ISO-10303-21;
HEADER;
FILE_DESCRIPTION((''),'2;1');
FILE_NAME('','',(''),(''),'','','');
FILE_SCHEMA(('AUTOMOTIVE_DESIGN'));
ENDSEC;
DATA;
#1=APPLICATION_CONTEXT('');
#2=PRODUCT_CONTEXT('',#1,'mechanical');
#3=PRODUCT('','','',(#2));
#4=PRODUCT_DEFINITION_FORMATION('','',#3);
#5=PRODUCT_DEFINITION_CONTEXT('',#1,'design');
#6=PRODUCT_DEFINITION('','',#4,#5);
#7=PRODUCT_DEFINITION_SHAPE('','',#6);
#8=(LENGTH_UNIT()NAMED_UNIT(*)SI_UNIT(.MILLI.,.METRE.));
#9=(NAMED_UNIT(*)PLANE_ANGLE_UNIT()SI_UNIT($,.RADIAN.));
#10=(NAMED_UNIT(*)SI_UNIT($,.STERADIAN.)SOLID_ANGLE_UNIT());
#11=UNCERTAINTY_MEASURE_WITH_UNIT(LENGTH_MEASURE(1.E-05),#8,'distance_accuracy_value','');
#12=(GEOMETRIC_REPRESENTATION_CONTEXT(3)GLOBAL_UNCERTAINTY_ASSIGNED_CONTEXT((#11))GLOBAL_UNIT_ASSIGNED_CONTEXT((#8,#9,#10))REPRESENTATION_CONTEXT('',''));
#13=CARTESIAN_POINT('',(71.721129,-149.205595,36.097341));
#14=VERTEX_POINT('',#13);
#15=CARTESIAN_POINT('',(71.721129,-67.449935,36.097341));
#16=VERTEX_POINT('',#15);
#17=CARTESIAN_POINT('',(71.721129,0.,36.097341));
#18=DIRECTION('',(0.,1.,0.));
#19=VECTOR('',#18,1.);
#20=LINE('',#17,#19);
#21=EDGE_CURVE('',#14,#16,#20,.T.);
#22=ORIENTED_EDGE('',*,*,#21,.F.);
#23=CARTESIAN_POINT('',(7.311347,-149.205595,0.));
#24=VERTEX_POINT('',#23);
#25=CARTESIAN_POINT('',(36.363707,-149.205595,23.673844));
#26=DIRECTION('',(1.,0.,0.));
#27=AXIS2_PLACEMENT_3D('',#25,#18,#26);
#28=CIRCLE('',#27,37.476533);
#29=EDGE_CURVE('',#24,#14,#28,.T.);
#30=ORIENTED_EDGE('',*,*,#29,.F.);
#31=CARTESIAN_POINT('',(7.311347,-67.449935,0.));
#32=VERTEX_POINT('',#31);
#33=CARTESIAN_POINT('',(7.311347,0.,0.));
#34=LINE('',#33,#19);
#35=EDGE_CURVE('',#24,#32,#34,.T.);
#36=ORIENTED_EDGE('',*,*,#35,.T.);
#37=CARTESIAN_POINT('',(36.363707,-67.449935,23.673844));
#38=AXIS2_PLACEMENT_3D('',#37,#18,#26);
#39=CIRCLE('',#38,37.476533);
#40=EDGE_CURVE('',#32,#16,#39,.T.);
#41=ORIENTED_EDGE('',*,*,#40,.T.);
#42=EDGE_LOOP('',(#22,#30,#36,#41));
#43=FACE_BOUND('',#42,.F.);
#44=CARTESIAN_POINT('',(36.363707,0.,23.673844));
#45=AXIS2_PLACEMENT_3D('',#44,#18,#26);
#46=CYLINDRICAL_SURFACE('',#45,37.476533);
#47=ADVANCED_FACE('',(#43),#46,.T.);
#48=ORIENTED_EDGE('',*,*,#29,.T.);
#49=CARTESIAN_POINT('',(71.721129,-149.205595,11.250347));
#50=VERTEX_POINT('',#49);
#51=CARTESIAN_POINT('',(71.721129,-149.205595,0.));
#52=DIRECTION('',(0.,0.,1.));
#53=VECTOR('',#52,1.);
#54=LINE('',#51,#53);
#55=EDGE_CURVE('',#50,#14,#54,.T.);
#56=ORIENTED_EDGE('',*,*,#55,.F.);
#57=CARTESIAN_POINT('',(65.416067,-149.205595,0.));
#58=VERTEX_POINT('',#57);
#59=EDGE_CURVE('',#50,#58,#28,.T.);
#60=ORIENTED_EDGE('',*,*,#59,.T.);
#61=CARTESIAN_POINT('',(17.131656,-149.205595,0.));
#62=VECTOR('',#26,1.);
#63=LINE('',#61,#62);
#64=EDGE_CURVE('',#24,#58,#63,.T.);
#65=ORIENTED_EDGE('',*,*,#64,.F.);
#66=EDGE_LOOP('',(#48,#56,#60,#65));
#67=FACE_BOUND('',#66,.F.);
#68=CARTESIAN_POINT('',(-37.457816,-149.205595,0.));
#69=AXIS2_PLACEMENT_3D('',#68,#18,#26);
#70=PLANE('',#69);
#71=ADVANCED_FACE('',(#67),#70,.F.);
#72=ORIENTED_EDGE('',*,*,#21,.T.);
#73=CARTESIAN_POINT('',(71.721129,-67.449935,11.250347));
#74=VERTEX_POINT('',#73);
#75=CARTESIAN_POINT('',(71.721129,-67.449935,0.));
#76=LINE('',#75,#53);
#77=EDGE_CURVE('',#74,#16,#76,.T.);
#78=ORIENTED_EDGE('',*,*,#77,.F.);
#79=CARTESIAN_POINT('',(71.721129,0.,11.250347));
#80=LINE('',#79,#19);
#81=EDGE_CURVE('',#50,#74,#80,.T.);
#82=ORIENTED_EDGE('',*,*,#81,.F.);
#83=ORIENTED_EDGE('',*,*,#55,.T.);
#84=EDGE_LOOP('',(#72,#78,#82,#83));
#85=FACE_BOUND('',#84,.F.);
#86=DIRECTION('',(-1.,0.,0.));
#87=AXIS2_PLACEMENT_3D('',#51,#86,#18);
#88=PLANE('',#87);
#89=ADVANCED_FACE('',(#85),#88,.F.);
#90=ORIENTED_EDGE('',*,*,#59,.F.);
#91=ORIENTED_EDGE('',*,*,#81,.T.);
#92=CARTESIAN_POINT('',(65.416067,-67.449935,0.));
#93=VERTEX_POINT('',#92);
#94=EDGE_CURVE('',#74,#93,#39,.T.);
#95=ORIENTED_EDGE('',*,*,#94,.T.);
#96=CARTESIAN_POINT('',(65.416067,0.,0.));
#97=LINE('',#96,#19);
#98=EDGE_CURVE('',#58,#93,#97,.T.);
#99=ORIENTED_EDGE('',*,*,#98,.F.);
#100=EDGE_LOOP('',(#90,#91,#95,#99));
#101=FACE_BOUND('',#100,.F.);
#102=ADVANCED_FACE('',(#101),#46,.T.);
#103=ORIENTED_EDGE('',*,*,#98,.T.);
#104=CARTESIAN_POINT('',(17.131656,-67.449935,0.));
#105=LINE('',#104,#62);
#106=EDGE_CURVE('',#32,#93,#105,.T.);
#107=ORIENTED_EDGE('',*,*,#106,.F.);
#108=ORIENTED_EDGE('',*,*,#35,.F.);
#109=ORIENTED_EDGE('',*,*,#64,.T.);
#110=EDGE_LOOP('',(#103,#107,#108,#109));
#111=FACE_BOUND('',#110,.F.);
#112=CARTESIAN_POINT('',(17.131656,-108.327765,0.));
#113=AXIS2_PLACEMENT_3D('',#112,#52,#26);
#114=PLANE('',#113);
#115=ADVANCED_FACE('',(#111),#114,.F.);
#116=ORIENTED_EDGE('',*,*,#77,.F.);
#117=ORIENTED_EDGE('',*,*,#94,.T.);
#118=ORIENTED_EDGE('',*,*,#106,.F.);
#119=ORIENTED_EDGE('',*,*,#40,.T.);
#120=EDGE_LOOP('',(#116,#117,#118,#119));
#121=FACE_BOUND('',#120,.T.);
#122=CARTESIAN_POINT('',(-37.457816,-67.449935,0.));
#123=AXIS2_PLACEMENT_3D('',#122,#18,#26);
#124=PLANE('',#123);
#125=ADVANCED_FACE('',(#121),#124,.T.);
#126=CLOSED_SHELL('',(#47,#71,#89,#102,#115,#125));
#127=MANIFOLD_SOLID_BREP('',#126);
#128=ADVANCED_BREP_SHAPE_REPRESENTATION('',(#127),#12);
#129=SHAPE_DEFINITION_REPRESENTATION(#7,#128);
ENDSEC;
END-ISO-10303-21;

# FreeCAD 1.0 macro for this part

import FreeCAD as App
import Part
import Sketcher
from FreeCAD import Vector
Q = App.Units.Quantity

doc = App.newDocument("Part")
params = doc.addObject("Spreadsheet::Sheet", "Params")
for row, (alias, value) in enumerate([
    ("pad1_length", "196.006492 mm"),
    ("pad2_length", "113.557346 mm"),
], start=1):
    params.set(f"A{row}", alias)
    params.set(f"B{row}", "=" + value)
    params.setAlias(f"B{row}", alias)

body = doc.addObject("PartDesign::Body", "Body")

# Sketch on XZ plane
sketch1 = doc.addObject("Sketcher::SketchObject", "Sketch")
body.addObject(sketch1)
sketch1.AttachmentSupport = (doc.XZ_Plane, [""])
sketch1.MapMode = "FlatFace"
sketch1.addGeometry(Part.Circle(Vector(36.363707, 23.673844, 0), Vector(0, 0, 1), 37.476533), False)
sketch1.addConstraint([
    Sketcher.Constraint("Diameter", 0, Q("74.953066 mm")),
    Sketcher.Constraint("DistanceX", -1, 1, 0, 3, Q("36.363707 mm")),
    Sketcher.Constraint("DistanceY", -1, 1, 0, 3, Q("23.673844 mm")),
])
pad1 = doc.addObject("PartDesign::Pad", "Pad")
body.addObject(pad1)
pad1.Profile = sketch1
pad1.setExpression("Length", "Params.pad1_length")
body2 = doc.addObject("PartDesign::Body", "Body001")

# Sketch on XY plane
sketch2 = doc.addObject("Sketcher::SketchObject", "Sketch001")
body2.addObject(sketch2)
sketch2.AttachmentSupport = (doc.getObject("XY_Plane001"), [""])
sketch2.MapMode = "FlatFace"
sketch2.addGeometry([
    Part.LineSegment(Vector(-37.457816, -67.449935, 0), Vector(-37.457816, -149.205595, 0)),
    Part.LineSegment(Vector(-37.457816, -149.205595, 0), Vector(71.721129, -149.205595, 0)),
    Part.LineSegment(Vector(71.721129, -149.205595, 0), Vector(71.721129, -67.449935, 0)),
    Part.LineSegment(Vector(71.721129, -67.449935, 0), Vector(-37.457816, -67.449935, 0)),
], False)
sketch2.addConstraint([
    Sketcher.Constraint("Coincident", 0, 2, 1, 1),
    Sketcher.Constraint("Coincident", 1, 2, 2, 1),
    Sketcher.Constraint("Coincident", 2, 2, 3, 1),
    Sketcher.Constraint("Coincident", 3, 2, 0, 1),
    Sketcher.Constraint("Vertical", 0),
    Sketcher.Constraint("Horizontal", 1),
    Sketcher.Constraint("Vertical", 2),
    Sketcher.Constraint("Horizontal", 3),
    Sketcher.Constraint("DistanceY", 0, 2, 0, 1, Q("81.75566 mm")),
    Sketcher.Constraint("DistanceX", 1, 1, 1, 2, Q("109.178945 mm")),
    Sketcher.Constraint("DistanceX", -1, 1, 1, 2, Q("71.721129 mm")),
    Sketcher.Constraint("DistanceY", 0, 2, -1, 1, Q("149.205595 mm")),
])
pad2 = doc.addObject("PartDesign::Pad", "Pad001")
body2.addObject(pad2)
pad2.Profile = sketch2
pad2.setExpression("Length", "Params.pad2_length")
doc.recompute()

boolean = doc.addObject("PartDesign::Boolean", "Boolean")
body2.addObject(boolean)
boolean.Type = "Common"
boolean.addObjects([body])

doc.recompute()
